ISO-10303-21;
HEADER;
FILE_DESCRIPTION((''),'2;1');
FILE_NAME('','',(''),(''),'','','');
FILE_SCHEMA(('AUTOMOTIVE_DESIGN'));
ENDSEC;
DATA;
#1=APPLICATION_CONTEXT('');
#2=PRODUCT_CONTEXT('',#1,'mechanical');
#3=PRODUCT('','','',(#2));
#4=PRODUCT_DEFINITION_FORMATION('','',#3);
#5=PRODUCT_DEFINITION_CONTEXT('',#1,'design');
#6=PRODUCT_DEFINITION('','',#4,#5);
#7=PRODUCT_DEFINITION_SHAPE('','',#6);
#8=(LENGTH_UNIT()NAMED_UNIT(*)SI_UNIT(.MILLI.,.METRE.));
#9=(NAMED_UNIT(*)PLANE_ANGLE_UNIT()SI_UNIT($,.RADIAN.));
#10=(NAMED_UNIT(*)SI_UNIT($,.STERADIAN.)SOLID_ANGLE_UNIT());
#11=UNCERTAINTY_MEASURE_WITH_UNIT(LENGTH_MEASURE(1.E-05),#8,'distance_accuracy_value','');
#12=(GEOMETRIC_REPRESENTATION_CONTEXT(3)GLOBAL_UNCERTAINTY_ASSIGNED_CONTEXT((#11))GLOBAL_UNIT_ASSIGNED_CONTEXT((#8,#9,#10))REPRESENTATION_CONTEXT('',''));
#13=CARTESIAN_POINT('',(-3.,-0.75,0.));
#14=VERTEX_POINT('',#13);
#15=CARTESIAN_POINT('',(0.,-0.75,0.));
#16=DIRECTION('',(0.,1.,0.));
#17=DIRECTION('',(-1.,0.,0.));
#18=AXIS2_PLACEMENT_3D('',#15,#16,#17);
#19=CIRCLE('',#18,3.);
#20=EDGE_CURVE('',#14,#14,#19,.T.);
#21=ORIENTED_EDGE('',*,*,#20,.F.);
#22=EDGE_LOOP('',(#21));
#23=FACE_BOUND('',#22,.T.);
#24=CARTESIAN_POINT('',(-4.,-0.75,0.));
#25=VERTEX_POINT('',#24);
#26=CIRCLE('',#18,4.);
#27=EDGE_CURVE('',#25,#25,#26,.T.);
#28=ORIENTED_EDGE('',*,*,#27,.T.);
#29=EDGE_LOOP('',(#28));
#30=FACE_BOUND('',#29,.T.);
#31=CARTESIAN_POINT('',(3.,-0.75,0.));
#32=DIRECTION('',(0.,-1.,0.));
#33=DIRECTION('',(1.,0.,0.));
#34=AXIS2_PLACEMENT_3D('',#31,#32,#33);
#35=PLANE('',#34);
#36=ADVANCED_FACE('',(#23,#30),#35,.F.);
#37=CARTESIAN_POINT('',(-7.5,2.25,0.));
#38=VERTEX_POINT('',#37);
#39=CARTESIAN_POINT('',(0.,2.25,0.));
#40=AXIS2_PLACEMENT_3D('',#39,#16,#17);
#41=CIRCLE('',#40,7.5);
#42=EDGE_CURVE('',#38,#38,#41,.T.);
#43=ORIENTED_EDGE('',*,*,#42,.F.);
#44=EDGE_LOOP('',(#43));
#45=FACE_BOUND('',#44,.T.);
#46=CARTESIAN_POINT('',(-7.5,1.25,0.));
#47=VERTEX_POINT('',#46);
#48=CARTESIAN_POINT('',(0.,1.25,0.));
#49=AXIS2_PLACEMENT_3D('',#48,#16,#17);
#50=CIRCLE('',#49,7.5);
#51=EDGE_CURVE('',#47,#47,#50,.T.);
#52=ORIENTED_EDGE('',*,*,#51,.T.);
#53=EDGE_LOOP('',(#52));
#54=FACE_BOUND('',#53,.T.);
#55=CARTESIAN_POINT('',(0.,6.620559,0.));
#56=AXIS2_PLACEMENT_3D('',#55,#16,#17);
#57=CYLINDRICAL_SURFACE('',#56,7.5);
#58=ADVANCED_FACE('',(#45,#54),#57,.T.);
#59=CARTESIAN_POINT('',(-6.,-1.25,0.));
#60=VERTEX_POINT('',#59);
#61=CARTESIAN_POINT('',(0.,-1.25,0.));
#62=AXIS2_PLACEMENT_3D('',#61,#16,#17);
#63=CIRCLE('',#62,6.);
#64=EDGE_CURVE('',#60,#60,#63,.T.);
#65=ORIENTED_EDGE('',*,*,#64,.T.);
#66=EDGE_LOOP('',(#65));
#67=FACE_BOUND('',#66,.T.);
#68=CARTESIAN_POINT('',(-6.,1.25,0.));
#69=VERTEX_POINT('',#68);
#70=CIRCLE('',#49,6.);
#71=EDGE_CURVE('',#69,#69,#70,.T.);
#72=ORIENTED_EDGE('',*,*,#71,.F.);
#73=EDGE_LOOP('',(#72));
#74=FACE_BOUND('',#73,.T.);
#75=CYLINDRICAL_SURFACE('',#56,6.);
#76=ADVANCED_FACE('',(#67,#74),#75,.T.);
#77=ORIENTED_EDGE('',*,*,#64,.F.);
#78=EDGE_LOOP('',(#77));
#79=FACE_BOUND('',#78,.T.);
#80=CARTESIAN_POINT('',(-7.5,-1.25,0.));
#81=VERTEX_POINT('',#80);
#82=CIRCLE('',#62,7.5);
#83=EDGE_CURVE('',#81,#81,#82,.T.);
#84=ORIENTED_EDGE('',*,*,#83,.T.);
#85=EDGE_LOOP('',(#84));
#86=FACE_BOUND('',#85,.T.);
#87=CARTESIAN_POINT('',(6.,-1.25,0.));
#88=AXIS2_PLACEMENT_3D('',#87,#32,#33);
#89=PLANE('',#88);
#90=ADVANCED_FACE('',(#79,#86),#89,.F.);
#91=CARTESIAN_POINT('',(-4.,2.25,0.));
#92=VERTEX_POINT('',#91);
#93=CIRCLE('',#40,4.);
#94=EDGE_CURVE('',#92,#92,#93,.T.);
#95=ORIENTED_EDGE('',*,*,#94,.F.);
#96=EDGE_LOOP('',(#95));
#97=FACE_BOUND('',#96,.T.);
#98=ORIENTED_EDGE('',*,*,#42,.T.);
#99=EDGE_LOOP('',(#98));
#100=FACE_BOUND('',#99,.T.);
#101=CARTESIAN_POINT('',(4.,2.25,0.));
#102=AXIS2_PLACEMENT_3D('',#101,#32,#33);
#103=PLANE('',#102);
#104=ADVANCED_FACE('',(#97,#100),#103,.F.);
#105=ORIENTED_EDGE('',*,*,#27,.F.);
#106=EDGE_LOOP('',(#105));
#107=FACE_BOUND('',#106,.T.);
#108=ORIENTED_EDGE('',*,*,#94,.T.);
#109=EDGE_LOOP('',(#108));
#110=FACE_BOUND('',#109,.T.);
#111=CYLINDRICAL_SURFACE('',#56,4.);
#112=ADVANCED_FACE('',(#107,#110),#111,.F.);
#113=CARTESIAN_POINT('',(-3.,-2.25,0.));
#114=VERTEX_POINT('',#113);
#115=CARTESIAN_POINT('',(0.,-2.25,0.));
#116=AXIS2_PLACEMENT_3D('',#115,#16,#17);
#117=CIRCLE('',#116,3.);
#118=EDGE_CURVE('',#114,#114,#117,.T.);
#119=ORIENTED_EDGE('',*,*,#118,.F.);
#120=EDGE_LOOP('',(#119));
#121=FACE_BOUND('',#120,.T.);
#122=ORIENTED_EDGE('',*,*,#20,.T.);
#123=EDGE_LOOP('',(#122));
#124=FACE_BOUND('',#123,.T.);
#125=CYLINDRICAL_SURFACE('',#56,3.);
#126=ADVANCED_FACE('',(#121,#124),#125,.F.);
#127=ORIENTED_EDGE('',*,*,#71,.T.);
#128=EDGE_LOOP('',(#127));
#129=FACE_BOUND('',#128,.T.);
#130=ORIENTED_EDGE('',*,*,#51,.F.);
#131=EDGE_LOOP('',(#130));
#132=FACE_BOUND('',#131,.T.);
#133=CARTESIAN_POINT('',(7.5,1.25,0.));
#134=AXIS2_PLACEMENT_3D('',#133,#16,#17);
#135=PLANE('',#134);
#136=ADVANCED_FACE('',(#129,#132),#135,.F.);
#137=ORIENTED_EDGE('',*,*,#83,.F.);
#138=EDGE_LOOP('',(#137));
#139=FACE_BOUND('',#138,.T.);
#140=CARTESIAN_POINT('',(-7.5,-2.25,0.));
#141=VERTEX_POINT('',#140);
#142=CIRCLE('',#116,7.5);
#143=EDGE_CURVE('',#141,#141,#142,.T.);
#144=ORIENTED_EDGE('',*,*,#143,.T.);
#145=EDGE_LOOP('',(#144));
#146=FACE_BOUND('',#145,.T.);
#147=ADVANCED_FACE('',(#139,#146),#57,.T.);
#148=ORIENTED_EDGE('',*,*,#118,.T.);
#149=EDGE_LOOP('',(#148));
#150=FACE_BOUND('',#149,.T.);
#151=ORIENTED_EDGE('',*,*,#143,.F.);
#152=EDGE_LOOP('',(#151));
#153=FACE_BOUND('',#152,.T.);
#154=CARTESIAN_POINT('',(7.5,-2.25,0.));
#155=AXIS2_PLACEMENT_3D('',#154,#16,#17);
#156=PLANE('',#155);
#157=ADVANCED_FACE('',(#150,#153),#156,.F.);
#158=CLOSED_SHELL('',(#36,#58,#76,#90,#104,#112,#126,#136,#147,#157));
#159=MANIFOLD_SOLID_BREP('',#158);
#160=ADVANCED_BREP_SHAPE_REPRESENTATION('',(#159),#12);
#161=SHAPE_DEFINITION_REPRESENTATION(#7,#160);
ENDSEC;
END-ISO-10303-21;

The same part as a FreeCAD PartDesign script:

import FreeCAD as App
import Part
import Sketcher
Q = App.Units.Quantity

doc = App.newDocument("Part")
body = doc.addObject("PartDesign::Body", "Body")

sketch1 = doc.addObject("Sketcher::SketchObject", "Sketch")
body.addObject(sketch1)
sketch1.AttachmentSupport = (doc.XY_Plane, [""])
sketch1.MapMode = "FlatFace"
sketch1.addGeometry([
    Part.LineSegment(App.Vector(4, 2.2, 0), App.Vector(4, -0.8, 0)),
    Part.LineSegment(App.Vector(4, -0.8, 0), App.Vector(3, -0.8, 0)),
    Part.LineSegment(App.Vector(3, -0.8, 0), App.Vector(3, -2.2, 0)),
    Part.LineSegment(App.Vector(3, -2.2, 0), App.Vector(7.5, -2.2, 0)),
    Part.LineSegment(App.Vector(7.5, -2.2, 0), App.Vector(7.5, -1.2, 0)),
    Part.LineSegment(App.Vector(7.5, -1.2, 0), App.Vector(6, -1.2, 0)),
    Part.LineSegment(App.Vector(6, -1.2, 0), App.Vector(6, 1.2, 0)),
    Part.LineSegment(App.Vector(6, 1.2, 0), App.Vector(7.5, 1.2, 0)),
    Part.LineSegment(App.Vector(7.5, 1.2, 0), App.Vector(7.5, 2.2, 0)),
    Part.LineSegment(App.Vector(7.5, 2.2, 0), App.Vector(4, 2.2, 0)),
], False)
sketch1.addConstraint([
    Sketcher.Constraint("Coincident", 0, 2, 1, 1),
    Sketcher.Constraint("Coincident", 1, 2, 2, 1),
    Sketcher.Constraint("Coincident", 2, 2, 3, 1),
    Sketcher.Constraint("Coincident", 3, 2, 4, 1),
    Sketcher.Constraint("Coincident", 4, 2, 5, 1),
    Sketcher.Constraint("Coincident", 5, 2, 6, 1),
    Sketcher.Constraint("Coincident", 6, 2, 7, 1),
    Sketcher.Constraint("Coincident", 7, 2, 8, 1),
    Sketcher.Constraint("Coincident", 8, 2, 9, 1),
    Sketcher.Constraint("Coincident", 9, 2, 0, 1),
    Sketcher.Constraint("Vertical", 0),
    Sketcher.Constraint("Horizontal", 1),
    Sketcher.Constraint("Vertical", 2),
    Sketcher.Constraint("Horizontal", 3),
    Sketcher.Constraint("Vertical", 4),
    Sketcher.Constraint("Horizontal", 5),
    Sketcher.Constraint("Vertical", 6),
    Sketcher.Constraint("Horizontal", 7),
    Sketcher.Constraint("Vertical", 8),
    Sketcher.Constraint("Horizontal", 9),
    Sketcher.Constraint("Symmetric", 4, 2, 7, 2, -1),
    Sketcher.Constraint("Equal", 7, 2),
    Sketcher.Constraint("Equal", 1, 4),
    Sketcher.Constraint("Equal", 4, 8),
    Sketcher.Constraint("DistanceX", 1, 2, 1, 1, Q("1 mm")),
    Sketcher.Constraint("DistanceY", 0, 2, 0, 1, Q("3 mm")),
    Sketcher.Constraint("DistanceX", 3, 1, 3, 2, Q("4.5 mm")),
    Sketcher.Constraint("DistanceX", 5, 2, 5, 1, Q("1.5 mm")),
    Sketcher.Constraint("DistanceX", -1, 1, 0, 2, Q("4 mm")),
])
revolution = doc.addObject("PartDesign::Revolution", "Revolution")
body.addObject(revolution)
revolution.Profile = sketch1
revolution.ReferenceAxis = (sketch1, ["V_Axis"])
revolution.Angle = 360

doc.recompute()
